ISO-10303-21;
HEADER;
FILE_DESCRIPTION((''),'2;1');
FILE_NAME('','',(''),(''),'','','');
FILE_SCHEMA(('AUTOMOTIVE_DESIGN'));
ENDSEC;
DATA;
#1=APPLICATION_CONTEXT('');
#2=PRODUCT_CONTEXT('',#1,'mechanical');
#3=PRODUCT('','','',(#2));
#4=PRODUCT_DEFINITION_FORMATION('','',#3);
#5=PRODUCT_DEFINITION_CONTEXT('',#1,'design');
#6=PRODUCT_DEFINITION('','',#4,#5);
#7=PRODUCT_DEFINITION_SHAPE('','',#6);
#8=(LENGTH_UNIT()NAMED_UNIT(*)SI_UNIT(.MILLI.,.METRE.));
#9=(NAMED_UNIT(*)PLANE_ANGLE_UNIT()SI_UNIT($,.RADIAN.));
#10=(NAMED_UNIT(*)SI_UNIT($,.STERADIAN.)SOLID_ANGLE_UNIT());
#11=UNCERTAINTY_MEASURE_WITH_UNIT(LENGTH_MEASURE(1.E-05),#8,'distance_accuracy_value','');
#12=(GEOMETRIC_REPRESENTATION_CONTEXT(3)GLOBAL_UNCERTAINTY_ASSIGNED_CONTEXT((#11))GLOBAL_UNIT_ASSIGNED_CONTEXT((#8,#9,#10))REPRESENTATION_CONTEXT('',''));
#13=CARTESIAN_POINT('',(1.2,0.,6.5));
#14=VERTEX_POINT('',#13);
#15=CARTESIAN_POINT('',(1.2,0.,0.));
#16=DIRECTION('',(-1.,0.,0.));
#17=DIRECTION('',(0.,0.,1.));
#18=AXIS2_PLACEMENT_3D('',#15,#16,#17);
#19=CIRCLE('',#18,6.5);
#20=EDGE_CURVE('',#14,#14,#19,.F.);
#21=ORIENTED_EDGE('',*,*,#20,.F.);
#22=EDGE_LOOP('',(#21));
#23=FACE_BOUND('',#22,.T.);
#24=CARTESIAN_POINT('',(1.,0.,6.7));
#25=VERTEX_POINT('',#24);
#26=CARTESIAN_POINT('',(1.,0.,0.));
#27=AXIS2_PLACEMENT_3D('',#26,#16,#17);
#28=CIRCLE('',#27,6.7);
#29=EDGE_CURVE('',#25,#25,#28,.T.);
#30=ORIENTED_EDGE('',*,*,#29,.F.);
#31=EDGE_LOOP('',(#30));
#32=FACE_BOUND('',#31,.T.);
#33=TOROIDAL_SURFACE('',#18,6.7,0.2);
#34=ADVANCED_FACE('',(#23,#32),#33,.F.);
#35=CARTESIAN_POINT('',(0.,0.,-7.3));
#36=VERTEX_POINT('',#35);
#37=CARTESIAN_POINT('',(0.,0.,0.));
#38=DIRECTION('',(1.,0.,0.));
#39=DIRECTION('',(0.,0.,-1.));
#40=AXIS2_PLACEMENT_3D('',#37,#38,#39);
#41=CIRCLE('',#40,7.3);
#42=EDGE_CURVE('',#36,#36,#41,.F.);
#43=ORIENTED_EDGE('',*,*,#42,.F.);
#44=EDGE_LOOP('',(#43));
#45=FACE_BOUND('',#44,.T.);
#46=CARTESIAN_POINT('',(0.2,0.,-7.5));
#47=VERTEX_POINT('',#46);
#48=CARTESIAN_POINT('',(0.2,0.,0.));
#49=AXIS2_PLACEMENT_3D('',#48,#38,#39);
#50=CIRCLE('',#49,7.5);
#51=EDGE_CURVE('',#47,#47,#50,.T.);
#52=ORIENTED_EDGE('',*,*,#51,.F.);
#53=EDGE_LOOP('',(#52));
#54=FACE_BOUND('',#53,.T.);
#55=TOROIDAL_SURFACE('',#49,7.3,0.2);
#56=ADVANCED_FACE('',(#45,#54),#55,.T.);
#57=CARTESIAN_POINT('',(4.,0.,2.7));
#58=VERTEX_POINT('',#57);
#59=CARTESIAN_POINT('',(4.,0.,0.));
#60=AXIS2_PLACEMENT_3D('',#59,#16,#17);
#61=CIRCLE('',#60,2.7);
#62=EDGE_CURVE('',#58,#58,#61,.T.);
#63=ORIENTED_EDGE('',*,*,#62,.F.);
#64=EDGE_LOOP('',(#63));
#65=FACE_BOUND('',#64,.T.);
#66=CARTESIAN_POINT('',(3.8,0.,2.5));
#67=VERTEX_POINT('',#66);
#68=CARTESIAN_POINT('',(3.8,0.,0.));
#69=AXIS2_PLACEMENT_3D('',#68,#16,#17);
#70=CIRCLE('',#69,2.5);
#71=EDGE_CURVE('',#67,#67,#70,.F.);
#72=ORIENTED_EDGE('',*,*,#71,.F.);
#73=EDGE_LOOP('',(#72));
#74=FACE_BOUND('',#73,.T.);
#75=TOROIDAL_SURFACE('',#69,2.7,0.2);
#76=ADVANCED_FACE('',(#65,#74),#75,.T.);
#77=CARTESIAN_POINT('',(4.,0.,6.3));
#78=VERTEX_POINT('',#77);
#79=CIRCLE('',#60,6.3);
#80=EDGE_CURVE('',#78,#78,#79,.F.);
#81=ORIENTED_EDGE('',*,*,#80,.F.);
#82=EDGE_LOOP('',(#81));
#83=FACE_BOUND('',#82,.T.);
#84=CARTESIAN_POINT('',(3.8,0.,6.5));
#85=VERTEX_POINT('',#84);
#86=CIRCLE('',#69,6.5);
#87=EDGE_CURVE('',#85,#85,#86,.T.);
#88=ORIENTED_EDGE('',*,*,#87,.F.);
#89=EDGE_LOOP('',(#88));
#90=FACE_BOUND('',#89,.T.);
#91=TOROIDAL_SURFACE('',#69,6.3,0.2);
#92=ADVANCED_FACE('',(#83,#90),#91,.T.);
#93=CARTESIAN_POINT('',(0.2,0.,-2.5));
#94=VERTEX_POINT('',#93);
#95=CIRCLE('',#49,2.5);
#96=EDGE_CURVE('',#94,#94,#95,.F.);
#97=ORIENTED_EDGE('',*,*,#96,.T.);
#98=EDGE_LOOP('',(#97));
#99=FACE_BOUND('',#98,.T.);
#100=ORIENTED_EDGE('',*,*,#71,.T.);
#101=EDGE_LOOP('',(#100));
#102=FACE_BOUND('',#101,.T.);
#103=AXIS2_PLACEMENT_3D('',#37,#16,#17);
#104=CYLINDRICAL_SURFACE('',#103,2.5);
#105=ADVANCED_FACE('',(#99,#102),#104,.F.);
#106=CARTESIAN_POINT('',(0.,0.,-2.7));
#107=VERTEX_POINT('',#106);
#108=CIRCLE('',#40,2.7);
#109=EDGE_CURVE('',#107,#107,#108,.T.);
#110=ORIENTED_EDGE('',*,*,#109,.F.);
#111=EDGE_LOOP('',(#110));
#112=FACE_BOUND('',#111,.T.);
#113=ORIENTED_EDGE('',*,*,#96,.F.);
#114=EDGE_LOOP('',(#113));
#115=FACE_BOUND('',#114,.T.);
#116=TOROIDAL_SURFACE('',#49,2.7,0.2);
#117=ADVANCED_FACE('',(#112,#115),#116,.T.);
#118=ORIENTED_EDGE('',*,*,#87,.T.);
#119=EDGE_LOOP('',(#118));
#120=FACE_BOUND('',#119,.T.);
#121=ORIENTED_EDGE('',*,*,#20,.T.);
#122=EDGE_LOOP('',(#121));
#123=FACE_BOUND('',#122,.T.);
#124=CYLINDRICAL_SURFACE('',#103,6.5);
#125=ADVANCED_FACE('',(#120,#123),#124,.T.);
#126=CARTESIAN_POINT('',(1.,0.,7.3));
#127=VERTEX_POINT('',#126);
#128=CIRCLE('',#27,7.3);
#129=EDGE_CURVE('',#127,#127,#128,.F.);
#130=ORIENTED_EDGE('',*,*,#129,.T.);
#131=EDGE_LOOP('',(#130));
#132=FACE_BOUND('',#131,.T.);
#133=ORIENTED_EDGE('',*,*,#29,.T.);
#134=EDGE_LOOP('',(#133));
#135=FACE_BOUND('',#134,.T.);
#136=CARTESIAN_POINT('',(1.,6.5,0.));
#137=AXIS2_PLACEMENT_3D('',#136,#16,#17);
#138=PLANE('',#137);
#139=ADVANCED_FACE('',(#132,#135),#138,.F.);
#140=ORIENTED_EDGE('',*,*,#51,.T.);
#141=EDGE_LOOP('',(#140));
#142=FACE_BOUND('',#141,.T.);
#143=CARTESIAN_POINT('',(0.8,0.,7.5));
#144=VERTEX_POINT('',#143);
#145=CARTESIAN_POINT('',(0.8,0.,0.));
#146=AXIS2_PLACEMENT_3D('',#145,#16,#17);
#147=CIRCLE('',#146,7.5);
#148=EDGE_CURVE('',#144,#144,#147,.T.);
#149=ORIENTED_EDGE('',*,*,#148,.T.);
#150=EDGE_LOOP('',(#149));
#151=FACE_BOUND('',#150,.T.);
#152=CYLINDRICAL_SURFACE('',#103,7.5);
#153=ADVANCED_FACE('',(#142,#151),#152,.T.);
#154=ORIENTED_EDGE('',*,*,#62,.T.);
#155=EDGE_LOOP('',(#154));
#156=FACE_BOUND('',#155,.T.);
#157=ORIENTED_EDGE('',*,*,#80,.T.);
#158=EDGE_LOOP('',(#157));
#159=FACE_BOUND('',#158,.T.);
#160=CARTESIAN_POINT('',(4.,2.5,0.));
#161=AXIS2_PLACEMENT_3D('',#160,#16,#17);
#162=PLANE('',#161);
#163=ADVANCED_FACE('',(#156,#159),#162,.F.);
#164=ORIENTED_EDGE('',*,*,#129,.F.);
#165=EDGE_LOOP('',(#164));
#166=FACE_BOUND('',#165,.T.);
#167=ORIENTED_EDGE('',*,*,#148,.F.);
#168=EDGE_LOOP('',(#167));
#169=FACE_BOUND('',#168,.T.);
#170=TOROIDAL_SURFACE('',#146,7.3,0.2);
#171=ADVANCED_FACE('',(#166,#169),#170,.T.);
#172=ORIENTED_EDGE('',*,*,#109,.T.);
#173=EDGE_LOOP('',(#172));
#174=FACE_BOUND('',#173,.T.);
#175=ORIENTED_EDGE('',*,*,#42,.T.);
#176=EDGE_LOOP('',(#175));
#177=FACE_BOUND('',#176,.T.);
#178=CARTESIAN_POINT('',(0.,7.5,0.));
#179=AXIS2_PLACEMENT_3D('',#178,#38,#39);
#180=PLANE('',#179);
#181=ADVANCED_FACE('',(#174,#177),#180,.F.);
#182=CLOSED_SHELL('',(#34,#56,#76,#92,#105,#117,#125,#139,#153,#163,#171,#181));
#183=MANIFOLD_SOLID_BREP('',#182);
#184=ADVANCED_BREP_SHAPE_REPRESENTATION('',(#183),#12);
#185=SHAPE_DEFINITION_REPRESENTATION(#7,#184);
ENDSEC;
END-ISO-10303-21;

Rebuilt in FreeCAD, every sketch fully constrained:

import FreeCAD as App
import Part
import Sketcher
Q = App.Units.Quantity


def edges_at(feature, points):
    """Names of the edges that pass closest to the given points."""
    edges = feature.Shape.Edges
    near = lambda p: min(range(len(edges)), key=lambda i: edges[i].distToShape(Part.Vertex(*p))[0])
    return sorted({f"Edge{near(p) + 1}" for p in points})

doc = App.newDocument("Part")
body = doc.addObject("PartDesign::Body", "Body")

# Sketch on XY plane
sketch1 = body.newObject("Sketcher::SketchObject", "Sketch")
sketch1.AttachmentSupport = (doc.getObject("XY_Plane"), [""])
sketch1.MapMode = "FlatFace"
sketch1.addGeometry([
    Part.LineSegment(App.Vector(0, 2.5, 0), App.Vector(4, 2.5, 0)),  # 0
    Part.LineSegment(App.Vector(4, 2.5, 0), App.Vector(4, 6.5, 0)),  # 1
    Part.LineSegment(App.Vector(4, 6.5, 0), App.Vector(1, 6.5, 0)),  # 2
    Part.LineSegment(App.Vector(1, 6.5, 0), App.Vector(1, 7.5, 0)),  # 3
    Part.LineSegment(App.Vector(1, 7.5, 0), App.Vector(0, 7.5, 0)),  # 4
    Part.LineSegment(App.Vector(0, 7.5, 0), App.Vector(0, 2.5, 0)),  # 5
], False)
sketch1.addConstraint([
    Sketcher.Constraint("Coincident", 0, 2, 1, 1),
    Sketcher.Constraint("Coincident", 1, 2, 2, 1),
    Sketcher.Constraint("Coincident", 2, 2, 3, 1),
    Sketcher.Constraint("Coincident", 3, 2, 4, 1),
    Sketcher.Constraint("Coincident", 4, 2, 5, 1),
    Sketcher.Constraint("Coincident", 5, 2, 0, 1),
    Sketcher.Constraint("Horizontal", 0),
    Sketcher.Constraint("Vertical", 1),
    Sketcher.Constraint("Horizontal", 2),
    Sketcher.Constraint("Vertical", 3),
    Sketcher.Constraint("Horizontal", 4),
    Sketcher.Constraint("Vertical", 5),
    Sketcher.Constraint("PointOnObject", 4, 2, -2),
    Sketcher.Constraint("Equal", 0, 1),
    Sketcher.Constraint("Equal", 4, 3),
    Sketcher.Constraint("DistanceX", 0, 1, 0, 2, Q("4 mm")),
    Sketcher.Constraint("DistanceX", 2, 2, 2, 1, Q("3 mm")),
    Sketcher.Constraint("DistanceY", -1, 1, 0, 2, Q("2.5 mm")),
])
revolution = body.newObject("PartDesign::Revolution", "Revolution")
revolution.Profile = sketch1
revolution.ReferenceAxis = (sketch1, ["H_Axis"])
revolution.Angle = 360
doc.recompute()

fillet = body.newObject("PartDesign::Fillet", "Fillet")
fillet.Base = (revolution, edges_at(revolution, [
    (0, 0, -7.5),
    (1, 0, -7.5),
    (1, 0, -6.5),
    (4, 0, -6.5),
    (4, 0, -2.5),
    (0, 0, -2.5),
]))
fillet.Radius = 0.2

doc.recompute()
